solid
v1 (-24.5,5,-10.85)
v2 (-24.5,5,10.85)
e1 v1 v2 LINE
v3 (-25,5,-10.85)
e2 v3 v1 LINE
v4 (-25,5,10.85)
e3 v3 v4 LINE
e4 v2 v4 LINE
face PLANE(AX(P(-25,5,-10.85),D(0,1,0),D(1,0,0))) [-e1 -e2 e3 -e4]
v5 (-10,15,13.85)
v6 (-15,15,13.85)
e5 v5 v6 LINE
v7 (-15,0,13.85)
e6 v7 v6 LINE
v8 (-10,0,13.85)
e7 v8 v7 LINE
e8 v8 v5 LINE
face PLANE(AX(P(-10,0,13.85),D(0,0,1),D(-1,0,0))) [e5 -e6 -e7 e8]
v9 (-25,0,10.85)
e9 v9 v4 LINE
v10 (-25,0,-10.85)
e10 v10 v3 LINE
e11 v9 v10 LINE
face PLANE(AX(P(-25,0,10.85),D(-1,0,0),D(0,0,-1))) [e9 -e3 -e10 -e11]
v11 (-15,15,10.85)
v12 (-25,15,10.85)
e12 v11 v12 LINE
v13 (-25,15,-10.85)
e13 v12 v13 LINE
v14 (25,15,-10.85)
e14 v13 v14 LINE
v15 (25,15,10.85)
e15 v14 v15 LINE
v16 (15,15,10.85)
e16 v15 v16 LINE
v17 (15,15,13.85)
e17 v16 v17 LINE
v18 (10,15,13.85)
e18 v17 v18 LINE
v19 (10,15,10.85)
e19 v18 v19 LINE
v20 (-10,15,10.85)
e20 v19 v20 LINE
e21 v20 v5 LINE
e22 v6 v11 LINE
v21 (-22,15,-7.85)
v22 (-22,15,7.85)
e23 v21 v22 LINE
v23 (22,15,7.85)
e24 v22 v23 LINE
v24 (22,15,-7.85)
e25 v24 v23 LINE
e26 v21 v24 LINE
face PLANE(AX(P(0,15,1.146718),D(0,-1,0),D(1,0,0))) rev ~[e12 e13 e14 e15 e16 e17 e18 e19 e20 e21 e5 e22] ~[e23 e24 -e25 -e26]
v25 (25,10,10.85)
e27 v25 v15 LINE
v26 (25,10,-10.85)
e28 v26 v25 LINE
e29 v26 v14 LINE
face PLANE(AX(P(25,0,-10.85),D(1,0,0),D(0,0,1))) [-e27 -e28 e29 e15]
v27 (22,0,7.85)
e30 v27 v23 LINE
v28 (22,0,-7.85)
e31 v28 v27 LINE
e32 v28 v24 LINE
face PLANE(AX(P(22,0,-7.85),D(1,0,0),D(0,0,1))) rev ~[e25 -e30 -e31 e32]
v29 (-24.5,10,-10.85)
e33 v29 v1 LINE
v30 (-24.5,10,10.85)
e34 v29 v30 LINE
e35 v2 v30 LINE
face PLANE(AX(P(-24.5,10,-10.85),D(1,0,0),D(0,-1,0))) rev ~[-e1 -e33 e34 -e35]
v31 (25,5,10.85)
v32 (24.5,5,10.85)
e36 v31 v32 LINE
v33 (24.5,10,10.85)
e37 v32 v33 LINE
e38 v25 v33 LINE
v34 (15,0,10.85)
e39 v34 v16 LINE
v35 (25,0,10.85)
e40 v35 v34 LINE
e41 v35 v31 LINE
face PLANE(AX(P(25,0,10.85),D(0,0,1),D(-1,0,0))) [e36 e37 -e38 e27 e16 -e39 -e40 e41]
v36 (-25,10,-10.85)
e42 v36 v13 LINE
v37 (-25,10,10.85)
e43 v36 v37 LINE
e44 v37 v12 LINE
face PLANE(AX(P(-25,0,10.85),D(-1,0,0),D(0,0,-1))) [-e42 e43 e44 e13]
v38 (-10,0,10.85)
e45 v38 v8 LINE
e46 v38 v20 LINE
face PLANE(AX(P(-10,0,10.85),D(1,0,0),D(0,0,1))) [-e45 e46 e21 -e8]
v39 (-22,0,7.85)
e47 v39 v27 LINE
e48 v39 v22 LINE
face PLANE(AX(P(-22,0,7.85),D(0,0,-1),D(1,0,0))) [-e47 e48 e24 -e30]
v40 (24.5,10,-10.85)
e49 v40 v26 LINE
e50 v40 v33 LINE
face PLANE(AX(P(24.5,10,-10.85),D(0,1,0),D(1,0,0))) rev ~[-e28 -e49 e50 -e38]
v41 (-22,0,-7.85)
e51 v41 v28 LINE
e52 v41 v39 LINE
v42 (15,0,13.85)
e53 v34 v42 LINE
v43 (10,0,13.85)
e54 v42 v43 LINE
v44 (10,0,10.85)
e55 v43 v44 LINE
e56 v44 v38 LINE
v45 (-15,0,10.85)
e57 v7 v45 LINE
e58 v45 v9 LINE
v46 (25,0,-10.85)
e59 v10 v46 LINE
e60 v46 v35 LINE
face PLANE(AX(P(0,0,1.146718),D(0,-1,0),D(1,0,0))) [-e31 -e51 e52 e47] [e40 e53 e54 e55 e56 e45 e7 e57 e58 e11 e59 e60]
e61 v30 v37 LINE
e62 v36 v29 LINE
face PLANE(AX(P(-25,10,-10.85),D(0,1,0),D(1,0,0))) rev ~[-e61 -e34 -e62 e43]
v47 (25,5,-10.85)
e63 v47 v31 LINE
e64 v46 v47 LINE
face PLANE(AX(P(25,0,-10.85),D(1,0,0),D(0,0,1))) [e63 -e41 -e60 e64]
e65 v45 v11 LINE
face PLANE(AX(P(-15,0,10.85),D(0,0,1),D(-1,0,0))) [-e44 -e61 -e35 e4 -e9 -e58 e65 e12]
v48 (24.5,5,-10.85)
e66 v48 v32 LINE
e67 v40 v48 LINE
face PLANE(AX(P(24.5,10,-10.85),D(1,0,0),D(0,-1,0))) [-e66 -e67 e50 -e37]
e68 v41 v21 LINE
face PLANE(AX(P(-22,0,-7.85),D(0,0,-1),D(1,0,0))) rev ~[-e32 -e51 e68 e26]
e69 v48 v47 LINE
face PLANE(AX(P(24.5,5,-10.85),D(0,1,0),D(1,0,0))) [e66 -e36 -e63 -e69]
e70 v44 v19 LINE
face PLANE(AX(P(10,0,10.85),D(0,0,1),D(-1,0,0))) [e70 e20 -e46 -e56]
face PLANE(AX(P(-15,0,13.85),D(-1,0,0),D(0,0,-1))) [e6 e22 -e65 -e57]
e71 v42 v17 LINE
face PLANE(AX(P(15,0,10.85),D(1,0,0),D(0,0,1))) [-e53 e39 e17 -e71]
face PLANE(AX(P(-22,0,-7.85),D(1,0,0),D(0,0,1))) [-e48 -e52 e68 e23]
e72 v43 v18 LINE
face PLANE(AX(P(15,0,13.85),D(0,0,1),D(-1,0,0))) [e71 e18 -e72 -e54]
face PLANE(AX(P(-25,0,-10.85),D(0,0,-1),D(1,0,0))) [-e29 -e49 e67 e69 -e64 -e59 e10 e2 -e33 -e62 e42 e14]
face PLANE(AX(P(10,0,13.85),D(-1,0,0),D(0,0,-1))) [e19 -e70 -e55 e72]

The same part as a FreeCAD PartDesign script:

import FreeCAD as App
import Part
import Sketcher
Q = App.Units.Quantity


def add_polygon(sketch, points):
    """Adds a closed chain of lines whose ends are joined by coincident constraints."""
    first, n = sketch.GeometryCount, len(points)
    for a, b in zip(points, points[1:] + points[:1]):
        sketch.addGeometry(Part.LineSegment(App.Vector(*a, 0), App.Vector(*b, 0)), False)
    for i in range(n):
        sketch.addConstraint(Sketcher.Constraint("Coincident", first + i, 2, first + (i + 1) % n, 1))

doc = App.newDocument("Part")
params = doc.addObject("Spreadsheet::Sheet", "Params")
for row, (alias, value) in enumerate([
    ("sketch1_width", "10 mm"),
    ("sketch1_width2", "50 mm"),
    ("sketch1_width3", "5 mm"),
    ("sketch1_width4", "44 mm"),
    ("sketch1_height", "3 mm"),
    ("pad1_length", "15 mm"),
    ("sketch2_height", "5 mm"),
    ("sketch2_width", "0.5 mm"),
    ("pocket1_length", "25 mm"),
], start=1):
    params.set(f"A{row}", alias)
    params.set(f"B{row}", "=" + value)
    params.setAlias(f"B{row}", alias)

body = doc.addObject("PartDesign::Body", "Body")

sketch1 = doc.addObject("Sketcher::SketchObject", "Sketch")
body.addObject(sketch1)
sketch1.AttachmentSupport = (doc.XZ_Plane, [""])
sketch1.MapMode = "FlatFace"
add_polygon(sketch1, [(-15, 10.8), (-25, 10.8), (-25, -10.8), (25, -10.8), (25, 10.8), (15, 10.8), (15, 13.8), (10, 13.8), (10, 10.8), (-10, 10.8), (-10, 13.8), (-15, 13.8)])
add_polygon(sketch1, [(22, -7.8), (-22, -7.8), (-22, 7.8), (22, 7.8)])
sketch1.addConstraint([
    Sketcher.Constraint("Horizontal", 0),
    Sketcher.Constraint("Vertical", 1),
    Sketcher.Constraint("Horizontal", 2),
    Sketcher.Constraint("Vertical", 3),
    Sketcher.Constraint("Horizontal", 4),
    Sketcher.Constraint("Vertical", 5),
    Sketcher.Constraint("Horizontal", 6),
    Sketcher.Constraint("Vertical", 7),
    Sketcher.Constraint("Horizontal", 8),
    Sketcher.Constraint("Vertical", 9),
    Sketcher.Constraint("Horizontal", 10),
    Sketcher.Constraint("Vertical", 11),
    Sketcher.Constraint("Horizontal", 12),
    Sketcher.Constraint("Vertical", 13),
    Sketcher.Constraint("Horizontal", 14),
    Sketcher.Constraint("Vertical", 15),
    Sketcher.Constraint("Symmetric", 0, 2, 2, 2, -1, 1),
    Sketcher.Constraint("Symmetric", 12, 2, 14, 2, -1, 1),
    Sketcher.Constraint("Symmetric", 6, 2, 9, 2, -2),
    Sketcher.Constraint("Symmetric", 4, 2, 11, 2, -2),
    Sketcher.Constraint("Horizontal", 4, 2, 7, 2),
    Sketcher.Constraint("DistanceX", 0, 2, 0, 1, Q("10 mm")),
    Sketcher.Constraint("DistanceX", 2, 1, 2, 2, Q("50 mm")),
    Sketcher.Constraint("DistanceX", 6, 2, 6, 1, Q("5 mm")),
    Sketcher.Constraint("DistanceX", 12, 2, 12, 1, Q("44 mm")),
    Sketcher.Constraint("DistanceY", 5, 1, 5, 2, Q("3 mm")),
    Sketcher.Constraint("DistanceY", 1, 2, 1, 1, Q("21.7 mm")),
    Sketcher.Constraint("DistanceY", 13, 1, 13, 2, Q("15.7 mm")),
])
sketch1.setExpression("Constraints[37]", "Params.sketch1_width")
sketch1.setExpression("Constraints[38]", "Params.sketch1_width2")
sketch1.setExpression("Constraints[39]", "Params.sketch1_width3")
sketch1.setExpression("Constraints[40]", "Params.sketch1_width4")
sketch1.setExpression("Constraints[41]", "Params.sketch1_height")
pad1 = doc.addObject("PartDesign::Pad", "Pad")
body.addObject(pad1)
pad1.Profile = sketch1
pad1.setExpression("Length", "Params.pad1_length")
pad1.Reversed = True

sketch2 = doc.addObject("Sketcher::SketchObject", "Sketch001")
body.addObject(sketch2)
sketch2.AttachmentSupport = (doc.XY_Plane, [""])
sketch2.MapMode = "FlatFace"
sketch2.AttachmentOffset = App.Placement(App.Vector(0, 0, -10.85), App.Rotation())
add_polygon(sketch2, [(-25, 5), (-25, 10), (-24.5, 10), (-24.5, 5)])
add_polygon(sketch2, [(24.5, 5), (24.5, 10), (25, 10), (25, 5)])
sketch2.addConstraint([
    Sketcher.Constraint("Vertical", 0),
    Sketcher.Constraint("Horizontal", 1),
    Sketcher.Constraint("Vertical", 2),
    Sketcher.Constraint("Horizontal", 3),
    Sketcher.Constraint("Vertical", 4),
    Sketcher.Constraint("Horizontal", 5),
    Sketcher.Constraint("Vertical", 6),
    Sketcher.Constraint("Horizontal", 7),
    Sketcher.Constraint("Symmetric", 1, 2, 4, 2, -2),
    Sketcher.Constraint("Symmetric", 3, 2, 6, 2, -2),
    Sketcher.Constraint("DistanceY", 0, 1, 0, 2, Q("5 mm")),
    Sketcher.Constraint("DistanceX", 1, 1, 1, 2, Q("0.5 mm")),
    Sketcher.Constraint("DistanceX", 0, 2, -1, 1, Q("25 mm")),
    Sketcher.Constraint("DistanceY", -1, 1, 0, 2, Q("10 mm")),
])
sketch2.setExpression("Constraints[18]", "Params.sketch2_height")
sketch2.setExpression("Constraints[19]", "Params.sketch2_width")
pocket1 = doc.addObject("PartDesign::Pocket", "Pocket")
body.addObject(pocket1)
pocket1.Profile = sketch2
pocket1.setExpression("Length", "Params.pocket1_length")
pocket1.Reversed = True

doc.recompute()
